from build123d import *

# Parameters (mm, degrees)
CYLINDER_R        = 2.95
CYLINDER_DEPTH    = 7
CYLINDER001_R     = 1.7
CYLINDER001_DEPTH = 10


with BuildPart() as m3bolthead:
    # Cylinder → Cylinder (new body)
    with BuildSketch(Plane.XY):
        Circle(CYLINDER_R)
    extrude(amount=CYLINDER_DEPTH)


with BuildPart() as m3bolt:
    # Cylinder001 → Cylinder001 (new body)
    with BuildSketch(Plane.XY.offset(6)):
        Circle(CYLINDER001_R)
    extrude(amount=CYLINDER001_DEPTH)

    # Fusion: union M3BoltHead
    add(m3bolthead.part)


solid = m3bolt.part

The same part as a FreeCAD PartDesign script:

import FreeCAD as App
import Part
import Sketcher
from FreeCAD import Vector
Q = App.Units.Quantity

doc = App.newDocument("Part")
body = doc.addObject("PartDesign::Body", "Body")

# Sketch on XY plane
sketch1 = doc.addObject("Sketcher::SketchObject", "Sketch")
body.addObject(sketch1)
sketch1.AttachmentSupport = (doc.XY_Plane, [""])
sketch1.MapMode = "FlatFace"
sketch1.addGeometry(Part.Circle(Vector(0, 0, 0), Vector(0, 0, 1), 2.95), False)
sketch1.addConstraint(Sketcher.Constraint("Coincident", 0, 3, -1, 1))
sketch1.addConstraint(Sketcher.Constraint("Diameter", 0, Q("5.9 mm")))
pad1 = doc.addObject("PartDesign::Pad", "Pad")
body.addObject(pad1)
pad1.Profile = sketch1
pad1.Length = 7
body2 = doc.addObject("PartDesign::Body", "Body001")

# Sketch on XY plane
sketch2 = doc.addObject("Sketcher::SketchObject", "Sketch001")
body2.addObject(sketch2)
sketch2.AttachmentSupport = (doc.getObject("XY_Plane001"), [""])
sketch2.MapMode = "FlatFace"
sketch2.AttachmentOffset = App.Placement(Vector(0, 0, 6), App.Rotation())
sketch2.addGeometry(Part.Circle(Vector(0, 0, 0), Vector(0, 0, 1), 1.7), False)
sketch2.addConstraint(Sketcher.Constraint("Coincident", 0, 3, -1, 1))
sketch2.addConstraint(Sketcher.Constraint("Diameter", 0, Q("3.4 mm")))
pad2 = doc.addObject("PartDesign::Pad", "Pad001")
body2.addObject(pad2)
pad2.Profile = sketch2
pad2.Length = 10
doc.recompute()

boolean = doc.addObject("PartDesign::Boolean", "Boolean")
body2.addObject(boolean)
boolean.Type = "Fuse"
boolean.addObjects([body])

doc.recompute()
